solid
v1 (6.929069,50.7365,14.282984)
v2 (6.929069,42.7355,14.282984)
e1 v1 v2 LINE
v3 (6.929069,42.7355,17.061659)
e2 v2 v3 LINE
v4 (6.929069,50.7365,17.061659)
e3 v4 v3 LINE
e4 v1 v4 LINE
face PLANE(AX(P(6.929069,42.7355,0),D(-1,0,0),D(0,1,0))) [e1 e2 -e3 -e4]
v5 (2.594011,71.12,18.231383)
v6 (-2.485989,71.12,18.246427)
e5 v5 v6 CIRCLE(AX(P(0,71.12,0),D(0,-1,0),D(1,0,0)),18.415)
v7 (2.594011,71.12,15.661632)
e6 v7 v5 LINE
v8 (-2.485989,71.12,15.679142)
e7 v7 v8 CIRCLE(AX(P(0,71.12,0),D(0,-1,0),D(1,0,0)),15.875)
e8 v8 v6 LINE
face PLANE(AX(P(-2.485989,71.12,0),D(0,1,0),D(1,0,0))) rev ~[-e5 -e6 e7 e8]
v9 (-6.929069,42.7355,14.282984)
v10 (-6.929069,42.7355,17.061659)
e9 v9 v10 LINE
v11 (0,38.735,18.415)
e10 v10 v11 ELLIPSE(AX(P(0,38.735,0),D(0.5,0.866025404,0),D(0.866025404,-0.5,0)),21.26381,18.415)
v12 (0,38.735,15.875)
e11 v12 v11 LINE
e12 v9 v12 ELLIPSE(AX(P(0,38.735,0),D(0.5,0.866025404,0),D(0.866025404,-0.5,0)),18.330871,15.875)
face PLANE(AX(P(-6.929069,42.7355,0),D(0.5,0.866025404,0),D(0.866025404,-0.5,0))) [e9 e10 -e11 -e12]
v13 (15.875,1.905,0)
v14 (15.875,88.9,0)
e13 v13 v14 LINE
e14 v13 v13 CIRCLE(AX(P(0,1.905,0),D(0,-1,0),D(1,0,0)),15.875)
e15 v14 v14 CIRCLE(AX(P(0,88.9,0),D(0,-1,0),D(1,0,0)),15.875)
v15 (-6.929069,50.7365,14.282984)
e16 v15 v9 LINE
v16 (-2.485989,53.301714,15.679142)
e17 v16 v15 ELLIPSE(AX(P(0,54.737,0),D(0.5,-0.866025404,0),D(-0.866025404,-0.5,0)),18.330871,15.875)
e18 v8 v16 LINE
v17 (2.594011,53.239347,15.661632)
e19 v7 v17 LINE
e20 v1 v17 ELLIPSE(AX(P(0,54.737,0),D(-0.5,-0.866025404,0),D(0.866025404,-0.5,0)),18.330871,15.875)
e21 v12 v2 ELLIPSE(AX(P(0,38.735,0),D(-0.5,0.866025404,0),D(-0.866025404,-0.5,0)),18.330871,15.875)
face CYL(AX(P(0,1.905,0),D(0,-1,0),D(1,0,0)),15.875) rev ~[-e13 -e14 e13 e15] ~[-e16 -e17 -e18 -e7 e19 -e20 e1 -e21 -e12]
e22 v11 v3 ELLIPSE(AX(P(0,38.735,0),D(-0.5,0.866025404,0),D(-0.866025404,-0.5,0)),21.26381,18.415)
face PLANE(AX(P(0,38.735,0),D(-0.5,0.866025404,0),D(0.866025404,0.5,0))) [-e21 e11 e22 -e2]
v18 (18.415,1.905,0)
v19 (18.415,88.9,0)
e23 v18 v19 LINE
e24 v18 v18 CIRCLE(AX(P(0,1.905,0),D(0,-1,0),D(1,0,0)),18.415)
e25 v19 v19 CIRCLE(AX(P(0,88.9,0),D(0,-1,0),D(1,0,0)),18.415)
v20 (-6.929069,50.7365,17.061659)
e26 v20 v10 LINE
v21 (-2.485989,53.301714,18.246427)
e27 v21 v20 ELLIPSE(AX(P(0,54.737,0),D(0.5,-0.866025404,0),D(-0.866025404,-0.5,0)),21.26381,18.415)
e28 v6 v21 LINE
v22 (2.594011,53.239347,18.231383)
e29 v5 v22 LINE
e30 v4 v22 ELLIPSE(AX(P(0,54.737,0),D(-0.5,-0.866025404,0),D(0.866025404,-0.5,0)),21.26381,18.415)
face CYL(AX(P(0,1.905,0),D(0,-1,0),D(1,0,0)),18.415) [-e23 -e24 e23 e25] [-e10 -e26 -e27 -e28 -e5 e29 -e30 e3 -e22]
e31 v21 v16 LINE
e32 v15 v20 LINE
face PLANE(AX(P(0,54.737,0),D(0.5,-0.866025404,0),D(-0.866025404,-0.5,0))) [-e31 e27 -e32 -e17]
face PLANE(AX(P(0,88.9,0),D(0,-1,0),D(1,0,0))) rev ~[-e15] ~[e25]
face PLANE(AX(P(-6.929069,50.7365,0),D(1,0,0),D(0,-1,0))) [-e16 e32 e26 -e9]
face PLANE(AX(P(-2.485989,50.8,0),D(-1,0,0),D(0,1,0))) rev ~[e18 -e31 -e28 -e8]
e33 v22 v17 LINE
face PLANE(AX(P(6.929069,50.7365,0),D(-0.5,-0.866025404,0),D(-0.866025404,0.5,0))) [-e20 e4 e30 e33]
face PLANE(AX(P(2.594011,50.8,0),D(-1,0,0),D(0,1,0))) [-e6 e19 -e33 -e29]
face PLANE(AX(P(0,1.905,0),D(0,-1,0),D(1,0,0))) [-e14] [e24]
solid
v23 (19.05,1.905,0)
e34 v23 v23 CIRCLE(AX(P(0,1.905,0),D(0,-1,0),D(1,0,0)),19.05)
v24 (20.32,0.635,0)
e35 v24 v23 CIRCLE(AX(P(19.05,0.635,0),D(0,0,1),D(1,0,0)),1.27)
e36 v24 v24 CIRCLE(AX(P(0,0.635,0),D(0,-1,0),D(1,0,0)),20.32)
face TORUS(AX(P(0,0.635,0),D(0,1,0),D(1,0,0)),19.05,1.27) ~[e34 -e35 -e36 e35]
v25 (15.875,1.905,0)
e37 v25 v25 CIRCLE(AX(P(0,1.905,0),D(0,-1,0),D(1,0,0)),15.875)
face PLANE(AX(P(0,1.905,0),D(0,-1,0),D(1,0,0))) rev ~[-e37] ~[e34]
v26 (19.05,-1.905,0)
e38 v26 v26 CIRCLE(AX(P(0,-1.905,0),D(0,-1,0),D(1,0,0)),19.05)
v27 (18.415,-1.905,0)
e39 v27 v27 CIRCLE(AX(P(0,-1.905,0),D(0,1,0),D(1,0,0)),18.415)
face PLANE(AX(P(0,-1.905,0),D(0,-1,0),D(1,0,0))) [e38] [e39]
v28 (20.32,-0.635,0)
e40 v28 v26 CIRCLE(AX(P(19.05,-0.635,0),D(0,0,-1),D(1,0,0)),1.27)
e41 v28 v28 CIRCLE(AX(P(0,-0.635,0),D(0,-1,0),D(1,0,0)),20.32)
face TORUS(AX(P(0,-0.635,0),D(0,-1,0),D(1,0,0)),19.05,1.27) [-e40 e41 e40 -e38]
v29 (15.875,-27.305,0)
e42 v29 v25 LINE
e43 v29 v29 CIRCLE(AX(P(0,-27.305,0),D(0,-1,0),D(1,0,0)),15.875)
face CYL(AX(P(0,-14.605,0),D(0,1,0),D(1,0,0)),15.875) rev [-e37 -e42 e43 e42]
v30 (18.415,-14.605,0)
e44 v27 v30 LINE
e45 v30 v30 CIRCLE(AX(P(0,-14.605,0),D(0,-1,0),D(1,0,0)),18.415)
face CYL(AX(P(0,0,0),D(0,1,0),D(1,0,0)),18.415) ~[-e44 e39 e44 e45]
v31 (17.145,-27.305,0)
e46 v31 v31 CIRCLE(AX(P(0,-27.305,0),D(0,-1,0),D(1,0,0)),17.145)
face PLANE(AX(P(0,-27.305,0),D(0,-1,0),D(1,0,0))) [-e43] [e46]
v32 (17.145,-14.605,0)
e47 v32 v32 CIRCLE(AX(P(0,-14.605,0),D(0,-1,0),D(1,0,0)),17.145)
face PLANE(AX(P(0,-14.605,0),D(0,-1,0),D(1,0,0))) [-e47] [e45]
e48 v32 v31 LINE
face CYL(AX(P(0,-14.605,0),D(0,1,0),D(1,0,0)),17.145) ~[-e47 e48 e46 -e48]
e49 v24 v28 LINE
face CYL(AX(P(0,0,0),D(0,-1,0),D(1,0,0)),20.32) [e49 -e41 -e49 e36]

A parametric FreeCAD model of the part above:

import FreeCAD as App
import Part
import Sketcher
from FreeCAD import Vector
Q = App.Units.Quantity


def edges_at(feature, points):
    """Names of the edges that pass closest to the given points."""
    edges = feature.Shape.Edges
    near = lambda p: min(range(len(edges)), key=lambda i: edges[i].distToShape(Part.Vertex(*p))[0])
    return sorted({f"Edge{near(p) + 1}" for p in points})


def add_polygon(sketch, points):
    """Adds a closed chain of lines whose ends are joined by coincident constraints."""
    first, n = sketch.GeometryCount, len(points)
    for a, b in zip(points, points[1:] + points[:1]):
        sketch.addGeometry(Part.LineSegment(App.Vector(*a, 0), App.Vector(*b, 0)), False)
    for i in range(n):
        sketch.addConstraint(Sketcher.Constraint("Coincident", first + i, 2, first + (i + 1) % n, 1))

doc = App.newDocument("Part")
params = doc.addObject("Spreadsheet::Sheet", "Params")
for row, (alias, value) in enumerate([
    ("sketch1_diameter", "1.6 in"),
    ("sketch1_diameter2", "1.25 in"),
    ("pad1_length", "0.15 in"),
    ("fillet_radius", "0.05 in"),
    ("sketch2_diameter", "1.45 in"),
    ("sketch2_diameter2", "1.25 in"),
    ("pad2_length", "0.575 in"),
    ("sketch3_diameter", "1.35 in"),
    ("sketch3_diameter2", "1.25 in"),
    ("pad3_length", "0.5 in"),
    ("sketch4_diameter", "1.45 in"),
    ("sketch4_diameter2", "1.25 in"),
    ("pad4_length", "3.425 in"),
    ("sketch5_width", "0.2 in"),
    ("sketch5_height", "0.315 in"),
    ("sketch5_length", "0.315 in"),
    ("pocket1_length", "1 in"),
], start=1):
    params.set(f"A{row}", alias)
    params.set(f"B{row}", "=" + value)
    params.setAlias(f"B{row}", alias)

body = doc.addObject("PartDesign::Body", "Body")

sketch1 = body.newObject("Sketcher::SketchObject", "Sketch")
sketch1.AttachmentSupport = (doc.getObject("XZ_Plane"), [""])
sketch1.MapMode = "FlatFace"
sketch1.addGeometry(Part.Circle(Vector(0, 0, 0), Vector(0, 0, 1), 20), False)
sketch1.addGeometry(Part.Circle(Vector(0, 0, 0), Vector(0, 0, 1), 16), False)
sketch1.addConstraint(Sketcher.Constraint("Coincident", 0, 3, -1, 1))
sketch1.addConstraint(Sketcher.Constraint("Coincident", 1, 3, -1, 1))
sketch1.addConstraint(Sketcher.Constraint("Diameter", 0, Q("1.6 in")))
sketch1.addConstraint(Sketcher.Constraint("Diameter", 1, Q("1.25 in")))
sketch1.setExpression("Constraints[2]", "Params.sketch1_diameter")
sketch1.setExpression("Constraints[3]", "Params.sketch1_diameter2")
pad1 = body.newObject("PartDesign::Pad", "Pad")
pad1.Profile = sketch1
pad1.setExpression("Length", "Params.pad1_length")
pad1.Midplane = True
doc.recompute()

fillet = body.newObject("PartDesign::Fillet", "Fillet")
fillet.Base = (pad1, edges_at(pad1, [(-20.32, 1.905, 0), (20.32, 0, 0), (-20.32, -1.905, 0)]))
fillet.setExpression("Radius", "Params.fillet_radius")

sketch2 = body.newObject("Sketcher::SketchObject", "Sketch001")
sketch2.AttachmentSupport = (doc.getObject("XZ_Plane"), [""])
sketch2.MapMode = "FlatFace"
sketch2.addGeometry(Part.Circle(Vector(0, 0, 0), Vector(0, 0, 1), 18), False)
sketch2.addGeometry(Part.Circle(Vector(0, 0, 0), Vector(0, 0, 1), 16), False)
sketch2.addConstraint(Sketcher.Constraint("Coincident", 0, 3, -1, 1))
sketch2.addConstraint(Sketcher.Constraint("Coincident", 1, 3, -1, 1))
sketch2.addConstraint(Sketcher.Constraint("Diameter", 0, Q("1.45 in")))
sketch2.addConstraint(Sketcher.Constraint("Diameter", 1, Q("1.25 in")))
sketch2.setExpression("Constraints[2]", "Params.sketch2_diameter")
sketch2.setExpression("Constraints[3]", "Params.sketch2_diameter2")
pad2 = body.newObject("PartDesign::Pad", "Pad001")
pad2.Profile = sketch2
pad2.setExpression("Length", "Params.pad2_length")

sketch3 = body.newObject("Sketcher::SketchObject", "Sketch002")
sketch3.AttachmentSupport = (doc.getObject("XZ_Plane"), [""])
sketch3.MapMode = "FlatFace"
sketch3.AttachmentOffset = App.Placement(Vector(0, 0, 0.575 * 25.4), App.Rotation())
sketch3.addGeometry(Part.Circle(Vector(0, 0, 0), Vector(0, 0, 1), 17), False)
sketch3.addGeometry(Part.Circle(Vector(0, 0, 0), Vector(0, 0, 1), 16), False)
sketch3.addConstraint(Sketcher.Constraint("Coincident", 0, 3, -1, 1))
sketch3.addConstraint(Sketcher.Constraint("Coincident", 1, 3, -1, 1))
sketch3.addConstraint(Sketcher.Constraint("Diameter", 0, Q("1.35 in")))
sketch3.addConstraint(Sketcher.Constraint("Diameter", 1, Q("1.25 in")))
sketch3.setExpression("Constraints[2]", "Params.sketch3_diameter")
sketch3.setExpression("Constraints[3]", "Params.sketch3_diameter2")
pad3 = body.newObject("PartDesign::Pad", "Pad002")
pad3.Profile = sketch3
pad3.setExpression("Length", "Params.pad3_length")
body2 = doc.addObject("PartDesign::Body", "Body001")

sketch4 = body2.newObject("Sketcher::SketchObject", "Sketch003")
sketch4.AttachmentSupport = (doc.getObject("XZ_Plane001"), [""])
sketch4.MapMode = "FlatFace"
sketch4.AttachmentOffset = App.Placement(Vector(0, 0, -0.075 * 25.4), App.Rotation())
sketch4.addGeometry(Part.Circle(Vector(0, 0, 0), Vector(0, 0, 1), 18), False)
sketch4.addGeometry(Part.Circle(Vector(0, 0, 0), Vector(0, 0, 1), 16), False)
sketch4.addConstraint(Sketcher.Constraint("Coincident", 0, 3, -1, 1))
sketch4.addConstraint(Sketcher.Constraint("Coincident", 1, 3, -1, 1))
sketch4.addConstraint(Sketcher.Constraint("Diameter", 0, Q("1.45 in")))
sketch4.addConstraint(Sketcher.Constraint("Diameter", 1, Q("1.25 in")))
sketch4.setExpression("Constraints[2]", "Params.sketch4_diameter")
sketch4.setExpression("Constraints[3]", "Params.sketch4_diameter2")
pad4 = body2.newObject("PartDesign::Pad", "Pad003")
pad4.Profile = sketch4
pad4.setExpression("Length", "Params.pad4_length")
pad4.Reversed = True

sketch5 = body2.newObject("Sketcher::SketchObject", "Sketch004")
sketch5.AttachmentSupport = (doc.getObject("XY_Plane001"), [""])
sketch5.MapMode = "FlatFace"
add_polygon(sketch5, [(-7, 51), (-7, 43), (0, 39), (7, 43), (7, 51), (3, 53), (3, 71), (-2, 71), (-2, 53)])
sketch5.addConstraint(Sketcher.Constraint("Vertical", 0))
sketch5.addConstraint(Sketcher.Constraint("Vertical", 3))
sketch5.addConstraint(Sketcher.Constraint("Vertical", 5))
sketch5.addConstraint(Sketcher.Constraint("Horizontal", 6))
sketch5.addConstraint(Sketcher.Constraint("Vertical", 7))
sketch5.addConstraint(Sketcher.Constraint("Symmetric", 0, 2, 2, 2, -2))
sketch5.addConstraint(Sketcher.Constraint("PointOnObject", 1, 2, -2))
sketch5.addConstraint(Sketcher.Constraint("Parallel", 1, 4))
sketch5.addConstraint(Sketcher.Constraint("Parallel", 2, 8))
sketch5.addConstraint(Sketcher.Constraint("Horizontal", 3, 2, 8, 2))
sketch5.addConstraint(Sketcher.Constraint("DistanceX", 6, 2, 6, 1, Q("0.2 in")))
sketch5.addConstraint(Sketcher.Constraint("Angle", 1, Q("-30 deg")))
sketch5.addConstraint(Sketcher.Constraint("DistanceY", -1, 1, 5, 2, Q("2.8 in")))
sketch5.addConstraint(Sketcher.Constraint("DistanceY", 0, 2, 0, 1, Q("0.315 in")))
sketch5.addConstraint(Sketcher.Constraint("Distance", 1, Q("0.315 in")))
sketch5.addConstraint(Sketcher.Constraint("DistanceY", -1, 1, 1, 2, Q("1.525 in")))
sketch5.addConstraint(Sketcher.Constraint("DistanceY", 5, 1, 5, 2, 17.880653))
sketch5.setExpression("Constraints[19]", "Params.sketch5_width")
sketch5.setExpression("Constraints[22]", "Params.sketch5_height")
sketch5.setExpression("Constraints[23]", "Params.sketch5_length")
pocket1 = body2.newObject("PartDesign::Pocket", "Pocket")
pocket1.Profile = sketch5
pocket1.setExpression("Length", "Params.pocket1_length")
pocket1.Reversed = True

doc.recompute()
